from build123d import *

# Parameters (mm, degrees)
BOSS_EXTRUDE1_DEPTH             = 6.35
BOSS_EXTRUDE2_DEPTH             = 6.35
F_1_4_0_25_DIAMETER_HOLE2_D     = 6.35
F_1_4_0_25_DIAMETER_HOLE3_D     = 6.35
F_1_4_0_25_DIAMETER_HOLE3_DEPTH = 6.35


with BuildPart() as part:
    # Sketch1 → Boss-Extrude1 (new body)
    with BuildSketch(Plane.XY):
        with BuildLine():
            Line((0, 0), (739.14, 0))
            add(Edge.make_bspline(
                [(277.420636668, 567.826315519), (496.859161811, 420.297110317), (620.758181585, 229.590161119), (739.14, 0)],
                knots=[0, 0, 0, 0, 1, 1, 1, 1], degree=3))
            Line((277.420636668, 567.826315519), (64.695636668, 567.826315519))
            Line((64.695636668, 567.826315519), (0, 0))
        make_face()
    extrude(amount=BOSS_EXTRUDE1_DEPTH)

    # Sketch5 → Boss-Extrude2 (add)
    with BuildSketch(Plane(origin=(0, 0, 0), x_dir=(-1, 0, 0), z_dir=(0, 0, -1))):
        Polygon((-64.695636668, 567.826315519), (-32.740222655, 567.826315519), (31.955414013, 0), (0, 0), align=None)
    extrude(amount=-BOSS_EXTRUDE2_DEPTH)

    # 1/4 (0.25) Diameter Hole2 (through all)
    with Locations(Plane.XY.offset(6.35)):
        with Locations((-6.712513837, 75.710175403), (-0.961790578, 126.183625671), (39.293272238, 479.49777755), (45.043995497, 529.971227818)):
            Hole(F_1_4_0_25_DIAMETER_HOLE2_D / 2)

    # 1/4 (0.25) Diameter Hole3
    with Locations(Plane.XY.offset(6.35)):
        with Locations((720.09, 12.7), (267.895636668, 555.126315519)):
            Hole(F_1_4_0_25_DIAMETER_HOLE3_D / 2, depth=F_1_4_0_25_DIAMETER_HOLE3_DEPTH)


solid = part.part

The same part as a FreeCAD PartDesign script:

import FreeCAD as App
import Part
import Sketcher
from FreeCAD import Vector
Q = App.Units.Quantity

doc = App.newDocument("Part")
params = doc.addObject("Spreadsheet::Sheet", "Params")
for row, (alias, value) in enumerate([
    ("sketch1_width", "29.1 in"),
    ("sketch1_length", "22.5 in"),
    ("pad1_length", "0.25 in"),
    ("sketch2_length", "22.5 in"),
    ("pad2_length", "0.25 in"),
    ("sketch3_diameter", "0.25 in"),
    ("hole_diameter", "0.25 in"),
    ("sketch4_diameter", "0.25 in"),
    ("hole2_diameter", "0.25 in"),
    ("hole2_depth", "0.25 in"),
], start=1):
    params.set(f"A{row}", alias)
    params.set(f"B{row}", "=" + value)
    params.setAlias(f"B{row}", alias)

body = doc.addObject("PartDesign::Body", "Body")

sketch1 = doc.addObject("Sketcher::SketchObject", "Sketch")
body.addObject(sketch1)
sketch1.AttachmentSupport = (doc.XY_Plane, [""])
sketch1.MapMode = "FlatFace"
sketch1.addGeometry(Part.LineSegment(Vector(0, 0, 0), Vector(739.14, 0, 0)), False)
sketch1.addGeometry(Part.BSplineCurve([Vector(277.420637, 567.826316, 0), Vector(496.859162, 420.29711, 0), Vector(620.758182, 229.590161, 0), Vector(739.14, 0, 0)], [4, 4], [0, 1], False, 3, [1, 1, 1, 1], False), False)
sketch1.addGeometry(Part.LineSegment(Vector(277.420637, 567.826316, 0), Vector(64.695637, 567.826316, 0)), False)
sketch1.addGeometry(Part.LineSegment(Vector(64.695637, 567.826316, 0), Vector(0, 0, 0)), False)
sketch1.addConstraint(Sketcher.Constraint("Block", 1))
sketch1.addConstraint(Sketcher.Constraint("Coincident", 0, 2, 1, 2))
sketch1.addConstraint(Sketcher.Constraint("Coincident", 1, 1, 2, 1))
sketch1.addConstraint(Sketcher.Constraint("Coincident", 2, 2, 3, 1))
sketch1.addConstraint(Sketcher.Constraint("Coincident", 3, 2, 0, 1))
sketch1.addConstraint(Sketcher.Constraint("Horizontal", 0))
sketch1.addConstraint(Sketcher.Constraint("Horizontal", 2))
sketch1.addConstraint(Sketcher.Constraint("DistanceX", 0, 1, 0, 2, Q("29.1 in")))
sketch1.addConstraint(Sketcher.Constraint("Distance", 3, Q("22.5 in")))
sketch1.setExpression("Constraints[7]", "Params.sketch1_width")
sketch1.setExpression("Constraints[8]", "Params.sketch1_length")
pad1 = doc.addObject("PartDesign::Pad", "Pad")
body.addObject(pad1)
pad1.Profile = sketch1
pad1.setExpression("Length", "Params.pad1_length")

sketch2 = doc.addObject("Sketcher::SketchObject", "Sketch001")
body.addObject(sketch2)
sketch2.AttachmentSupport = (doc.XY_Plane, [""])
sketch2.MapMode = "FlatFace"
sketch2.addGeometry(Part.LineSegment(Vector(32.740223, 567.826316, 0), Vector(64.695637, 567.826316, 0)), False)
sketch2.addGeometry(Part.LineSegment(Vector(64.695637, 567.826316, 0), Vector(0, 0, 0)), False)
sketch2.addGeometry(Part.LineSegment(Vector(0, 0, 0), Vector(-31.955414, 0, 0)), False)
sketch2.addGeometry(Part.LineSegment(Vector(-31.955414, 0, 0), Vector(32.740223, 567.826316, 0)), False)
sketch2.addConstraint(Sketcher.Constraint("Coincident", 0, 2, 1, 1))
sketch2.addConstraint(Sketcher.Constraint("Coincident", 1, 2, 2, 1))
sketch2.addConstraint(Sketcher.Constraint("Coincident", 2, 2, 3, 1))
sketch2.addConstraint(Sketcher.Constraint("Coincident", 3, 2, 0, 1))
sketch2.addConstraint(Sketcher.Constraint("Horizontal", 0))
sketch2.addConstraint(Sketcher.Constraint("Horizontal", 2))
sketch2.addConstraint(Sketcher.Constraint("Coincident", 1, 2, -1, 1))
sketch2.addConstraint(Sketcher.Constraint("Parallel", 1, 3))
sketch2.addConstraint(Sketcher.Constraint("Distance", 1, Q("22.5 in")))
sketch2.addConstraint(Sketcher.Constraint("Angle", 1, Q("-96.5 deg")))
sketch2.addConstraint(Sketcher.Constraint("DistanceX", 0, 1, 0, 2, 31.955414))
sketch2.setExpression("Constraints[8]", "Params.sketch2_length")
pad2 = doc.addObject("PartDesign::Pad", "Pad001")
body.addObject(pad2)
pad2.Profile = sketch2
pad2.setExpression("Length", "Params.pad2_length")

sketch3 = doc.addObject("Sketcher::SketchObject", "Sketch002")
body.addObject(sketch3)
sketch3.AttachmentSupport = (doc.XY_Plane, [""])
sketch3.MapMode = "FlatFace"
sketch3.AttachmentOffset = App.Placement(Vector(0, 0, 0.25 * 25.4), App.Rotation())
sketch3.addGeometry(Part.Circle(Vector(-6.712514, 75.710175, 0), Vector(0, 0, 1), 3.175), False)
sketch3.addGeometry(Part.Circle(Vector(-0.961791, 126.183626, 0), Vector(0, 0, 1), 3.175), False)
sketch3.addGeometry(Part.Circle(Vector(39.293272, 479.497778, 0), Vector(0, 0, 1), 3.175), False)
sketch3.addGeometry(Part.Circle(Vector(45.043995, 529.971228, 0), Vector(0, 0, 1), 3.175), False)
sketch3.addConstraint(Sketcher.Constraint("Equal", 0, 1))
sketch3.addConstraint(Sketcher.Constraint("Equal", 1, 2))
sketch3.addConstraint(Sketcher.Constraint("Equal", 2, 3))
sketch3.addConstraint(Sketcher.Constraint("Diameter", 0, Q("0.25 in")))
sketch3.addConstraint(Sketcher.Constraint("DistanceX", 1, 3, -1, 1, 0.961791))
sketch3.addConstraint(Sketcher.Constraint("DistanceY", 0, 3, 1, 3, 50.47345))
sketch3.addConstraint(Sketcher.Constraint("DistanceY", 1, 3, 2, 3, 353.314152))
sketch3.addConstraint(Sketcher.Constraint("DistanceY", 2, 3, 3, 3, 50.47345))
sketch3.addConstraint(Sketcher.Constraint("DistanceX", 0, 3, 3, 3, 51.756509))
sketch3.addConstraint(Sketcher.Constraint("DistanceX", 0, 3, -1, 1, 6.712514))
sketch3.addConstraint(Sketcher.Constraint("DistanceY", -1, 1, 0, 3, 75.710175))
sketch3.addConstraint(Sketcher.Constraint("DistanceX", -1, 1, 2, 3, 39.293272))
sketch3.setExpression("Constraints[3]", "Params.sketch3_diameter")
doc.recompute()
hole = doc.addObject("PartDesign::Hole", "Hole")
body.addObject(hole)
hole.Profile = sketch3
hole.ThreadType = "None"
hole.setExpression("Diameter", "Params.hole_diameter")
hole.DepthType = "ThroughAll"

sketch4 = doc.addObject("Sketcher::SketchObject", "Sketch003")
body.addObject(sketch4)
sketch4.AttachmentSupport = (doc.XY_Plane, [""])
sketch4.MapMode = "FlatFace"
sketch4.AttachmentOffset = App.Placement(Vector(0, 0, 0.25 * 25.4), App.Rotation())
sketch4.addGeometry(Part.Circle(Vector(720.09, 12.7, 0), Vector(0, 0, 1), 3.175), False)
sketch4.addGeometry(Part.Circle(Vector(267.895637, 555.126316, 0), Vector(0, 0, 1), 3.175), False)
sketch4.addConstraint(Sketcher.Constraint("Equal", 0, 1))
sketch4.addConstraint(Sketcher.Constraint("Diameter", 0, Q("0.25 in")))
sketch4.addConstraint(Sketcher.Constraint("DistanceY", -1, 1, 0, 3, Q("0.5 in")))
sketch4.addConstraint(Sketcher.Constraint("DistanceX", -1, 1, 0, 3, Q("28.35 in")))
sketch4.addConstraint(Sketcher.Constraint("DistanceX", -1, 1, 1, 3, 267.895637))
sketch4.addConstraint(Sketcher.Constraint("DistanceY", -1, 1, 1, 3, 555.126316))
sketch4.setExpression("Constraints[1]", "Params.sketch4_diameter")
doc.recompute()
hole2 = doc.addObject("PartDesign::Hole", "Hole001")
body.addObject(hole2)
hole2.Profile = sketch4
hole2.ThreadType = "None"
hole2.setExpression("Diameter", "Params.hole2_diameter")
hole2.DepthType = "Dimension"
hole2.setExpression("Depth", "Params.hole2_depth")
hole2.DrillPoint = "Flat"

doc.recompute()
